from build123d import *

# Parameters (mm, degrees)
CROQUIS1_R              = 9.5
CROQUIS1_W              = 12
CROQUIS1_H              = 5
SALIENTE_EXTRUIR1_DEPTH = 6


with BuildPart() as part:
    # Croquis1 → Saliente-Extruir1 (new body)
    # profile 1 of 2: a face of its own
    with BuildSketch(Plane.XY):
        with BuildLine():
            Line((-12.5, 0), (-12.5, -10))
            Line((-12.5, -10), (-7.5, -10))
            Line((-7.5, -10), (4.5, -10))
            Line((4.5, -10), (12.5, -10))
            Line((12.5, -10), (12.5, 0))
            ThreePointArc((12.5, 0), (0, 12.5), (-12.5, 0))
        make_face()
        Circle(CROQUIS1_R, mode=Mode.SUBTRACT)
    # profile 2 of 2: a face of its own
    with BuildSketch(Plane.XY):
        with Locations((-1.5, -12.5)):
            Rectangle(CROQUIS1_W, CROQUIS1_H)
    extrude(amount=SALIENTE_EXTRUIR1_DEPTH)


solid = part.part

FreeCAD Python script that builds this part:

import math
import FreeCAD as App
import Part
import Sketcher

V = App.Vector
Q = App.Units.Quantity

doc = App.newDocument("Part")
body = doc.addObject("PartDesign::Body", "Body")

# Sketch on XY plane
sketch1 = body.newObject("Sketcher::SketchObject", "Sketch")
sketch1.AttachmentSupport = (doc.getObject("XY_Plane"), [""])
sketch1.MapMode = "FlatFace"
sketch1.addGeometry([
    Part.LineSegment(V(-12.5, 0, 0), V(-12.5, -10, 0)),  # 0
    Part.LineSegment(V(-12.5, -10, 0), V(-7.5, -10, 0)),  # 1
    Part.LineSegment(V(-7.5, -10, 0), V(-7.5, -15, 0)),  # 2
    Part.LineSegment(V(-7.5, -15, 0), V(4.5, -15, 0)),  # 3
    Part.LineSegment(V(4.5, -15, 0), V(4.5, -10, 0)),  # 4
    Part.LineSegment(V(4.5, -10, 0), V(12.5, -10, 0)),  # 5
    Part.LineSegment(V(12.5, -10, 0), V(12.5, 0, 0)),  # 6
    Part.ArcOfCircle(Part.Circle(V(0, 0, 0), V(0, 0, 1), 12.5), math.radians(0), math.radians(180)),  # 7
    Part.Circle(V(0, 0, 0), V(0, 0, 1), 9.5),  # 8
], False)
sketch1.addConstraint([
    Sketcher.Constraint("Coincident", 0, 2, 1, 1),
    Sketcher.Constraint("Coincident", 1, 2, 2, 1),
    Sketcher.Constraint("Coincident", 2, 2, 3, 1),
    Sketcher.Constraint("Coincident", 3, 2, 4, 1),
    Sketcher.Constraint("Coincident", 4, 2, 5, 1),
    Sketcher.Constraint("Coincident", 5, 2, 6, 1),
    Sketcher.Constraint("Tangent", 6, 2, 7, 1),
    Sketcher.Constraint("Tangent", 7, 2, 0, 1),
    Sketcher.Constraint("Vertical", 0),
    Sketcher.Constraint("Horizontal", 1),
    Sketcher.Constraint("Vertical", 2),
    Sketcher.Constraint("Horizontal", 3),
    Sketcher.Constraint("Vertical", 4),
    Sketcher.Constraint("Horizontal", 5),
    Sketcher.Constraint("Vertical", 6),
    Sketcher.Constraint("Coincident", 7, 3, -1, 1),
    Sketcher.Constraint("Coincident", 8, 3, -1, 1),
    Sketcher.Constraint("Horizontal", 1, 2, 4, 2),
    Sketcher.Constraint("Equal", 1, 2),
    Sketcher.Constraint("Diameter", 8, Q("19 mm")),
    Sketcher.Constraint("Radius", 7, Q("12.5 mm")),
    Sketcher.Constraint("DistanceX", 1, 1, 1, 2, Q("5 mm")),
    Sketcher.Constraint("DistanceX", 3, 1, 3, 2, Q("12 mm")),
    Sketcher.Constraint("DistanceY", 0, 2, 0, 1, Q("10 mm")),
])
pad1 = body.newObject("PartDesign::Pad", "Pad")
pad1.Profile = sketch1
pad1.Length = 6

doc.recompute()
